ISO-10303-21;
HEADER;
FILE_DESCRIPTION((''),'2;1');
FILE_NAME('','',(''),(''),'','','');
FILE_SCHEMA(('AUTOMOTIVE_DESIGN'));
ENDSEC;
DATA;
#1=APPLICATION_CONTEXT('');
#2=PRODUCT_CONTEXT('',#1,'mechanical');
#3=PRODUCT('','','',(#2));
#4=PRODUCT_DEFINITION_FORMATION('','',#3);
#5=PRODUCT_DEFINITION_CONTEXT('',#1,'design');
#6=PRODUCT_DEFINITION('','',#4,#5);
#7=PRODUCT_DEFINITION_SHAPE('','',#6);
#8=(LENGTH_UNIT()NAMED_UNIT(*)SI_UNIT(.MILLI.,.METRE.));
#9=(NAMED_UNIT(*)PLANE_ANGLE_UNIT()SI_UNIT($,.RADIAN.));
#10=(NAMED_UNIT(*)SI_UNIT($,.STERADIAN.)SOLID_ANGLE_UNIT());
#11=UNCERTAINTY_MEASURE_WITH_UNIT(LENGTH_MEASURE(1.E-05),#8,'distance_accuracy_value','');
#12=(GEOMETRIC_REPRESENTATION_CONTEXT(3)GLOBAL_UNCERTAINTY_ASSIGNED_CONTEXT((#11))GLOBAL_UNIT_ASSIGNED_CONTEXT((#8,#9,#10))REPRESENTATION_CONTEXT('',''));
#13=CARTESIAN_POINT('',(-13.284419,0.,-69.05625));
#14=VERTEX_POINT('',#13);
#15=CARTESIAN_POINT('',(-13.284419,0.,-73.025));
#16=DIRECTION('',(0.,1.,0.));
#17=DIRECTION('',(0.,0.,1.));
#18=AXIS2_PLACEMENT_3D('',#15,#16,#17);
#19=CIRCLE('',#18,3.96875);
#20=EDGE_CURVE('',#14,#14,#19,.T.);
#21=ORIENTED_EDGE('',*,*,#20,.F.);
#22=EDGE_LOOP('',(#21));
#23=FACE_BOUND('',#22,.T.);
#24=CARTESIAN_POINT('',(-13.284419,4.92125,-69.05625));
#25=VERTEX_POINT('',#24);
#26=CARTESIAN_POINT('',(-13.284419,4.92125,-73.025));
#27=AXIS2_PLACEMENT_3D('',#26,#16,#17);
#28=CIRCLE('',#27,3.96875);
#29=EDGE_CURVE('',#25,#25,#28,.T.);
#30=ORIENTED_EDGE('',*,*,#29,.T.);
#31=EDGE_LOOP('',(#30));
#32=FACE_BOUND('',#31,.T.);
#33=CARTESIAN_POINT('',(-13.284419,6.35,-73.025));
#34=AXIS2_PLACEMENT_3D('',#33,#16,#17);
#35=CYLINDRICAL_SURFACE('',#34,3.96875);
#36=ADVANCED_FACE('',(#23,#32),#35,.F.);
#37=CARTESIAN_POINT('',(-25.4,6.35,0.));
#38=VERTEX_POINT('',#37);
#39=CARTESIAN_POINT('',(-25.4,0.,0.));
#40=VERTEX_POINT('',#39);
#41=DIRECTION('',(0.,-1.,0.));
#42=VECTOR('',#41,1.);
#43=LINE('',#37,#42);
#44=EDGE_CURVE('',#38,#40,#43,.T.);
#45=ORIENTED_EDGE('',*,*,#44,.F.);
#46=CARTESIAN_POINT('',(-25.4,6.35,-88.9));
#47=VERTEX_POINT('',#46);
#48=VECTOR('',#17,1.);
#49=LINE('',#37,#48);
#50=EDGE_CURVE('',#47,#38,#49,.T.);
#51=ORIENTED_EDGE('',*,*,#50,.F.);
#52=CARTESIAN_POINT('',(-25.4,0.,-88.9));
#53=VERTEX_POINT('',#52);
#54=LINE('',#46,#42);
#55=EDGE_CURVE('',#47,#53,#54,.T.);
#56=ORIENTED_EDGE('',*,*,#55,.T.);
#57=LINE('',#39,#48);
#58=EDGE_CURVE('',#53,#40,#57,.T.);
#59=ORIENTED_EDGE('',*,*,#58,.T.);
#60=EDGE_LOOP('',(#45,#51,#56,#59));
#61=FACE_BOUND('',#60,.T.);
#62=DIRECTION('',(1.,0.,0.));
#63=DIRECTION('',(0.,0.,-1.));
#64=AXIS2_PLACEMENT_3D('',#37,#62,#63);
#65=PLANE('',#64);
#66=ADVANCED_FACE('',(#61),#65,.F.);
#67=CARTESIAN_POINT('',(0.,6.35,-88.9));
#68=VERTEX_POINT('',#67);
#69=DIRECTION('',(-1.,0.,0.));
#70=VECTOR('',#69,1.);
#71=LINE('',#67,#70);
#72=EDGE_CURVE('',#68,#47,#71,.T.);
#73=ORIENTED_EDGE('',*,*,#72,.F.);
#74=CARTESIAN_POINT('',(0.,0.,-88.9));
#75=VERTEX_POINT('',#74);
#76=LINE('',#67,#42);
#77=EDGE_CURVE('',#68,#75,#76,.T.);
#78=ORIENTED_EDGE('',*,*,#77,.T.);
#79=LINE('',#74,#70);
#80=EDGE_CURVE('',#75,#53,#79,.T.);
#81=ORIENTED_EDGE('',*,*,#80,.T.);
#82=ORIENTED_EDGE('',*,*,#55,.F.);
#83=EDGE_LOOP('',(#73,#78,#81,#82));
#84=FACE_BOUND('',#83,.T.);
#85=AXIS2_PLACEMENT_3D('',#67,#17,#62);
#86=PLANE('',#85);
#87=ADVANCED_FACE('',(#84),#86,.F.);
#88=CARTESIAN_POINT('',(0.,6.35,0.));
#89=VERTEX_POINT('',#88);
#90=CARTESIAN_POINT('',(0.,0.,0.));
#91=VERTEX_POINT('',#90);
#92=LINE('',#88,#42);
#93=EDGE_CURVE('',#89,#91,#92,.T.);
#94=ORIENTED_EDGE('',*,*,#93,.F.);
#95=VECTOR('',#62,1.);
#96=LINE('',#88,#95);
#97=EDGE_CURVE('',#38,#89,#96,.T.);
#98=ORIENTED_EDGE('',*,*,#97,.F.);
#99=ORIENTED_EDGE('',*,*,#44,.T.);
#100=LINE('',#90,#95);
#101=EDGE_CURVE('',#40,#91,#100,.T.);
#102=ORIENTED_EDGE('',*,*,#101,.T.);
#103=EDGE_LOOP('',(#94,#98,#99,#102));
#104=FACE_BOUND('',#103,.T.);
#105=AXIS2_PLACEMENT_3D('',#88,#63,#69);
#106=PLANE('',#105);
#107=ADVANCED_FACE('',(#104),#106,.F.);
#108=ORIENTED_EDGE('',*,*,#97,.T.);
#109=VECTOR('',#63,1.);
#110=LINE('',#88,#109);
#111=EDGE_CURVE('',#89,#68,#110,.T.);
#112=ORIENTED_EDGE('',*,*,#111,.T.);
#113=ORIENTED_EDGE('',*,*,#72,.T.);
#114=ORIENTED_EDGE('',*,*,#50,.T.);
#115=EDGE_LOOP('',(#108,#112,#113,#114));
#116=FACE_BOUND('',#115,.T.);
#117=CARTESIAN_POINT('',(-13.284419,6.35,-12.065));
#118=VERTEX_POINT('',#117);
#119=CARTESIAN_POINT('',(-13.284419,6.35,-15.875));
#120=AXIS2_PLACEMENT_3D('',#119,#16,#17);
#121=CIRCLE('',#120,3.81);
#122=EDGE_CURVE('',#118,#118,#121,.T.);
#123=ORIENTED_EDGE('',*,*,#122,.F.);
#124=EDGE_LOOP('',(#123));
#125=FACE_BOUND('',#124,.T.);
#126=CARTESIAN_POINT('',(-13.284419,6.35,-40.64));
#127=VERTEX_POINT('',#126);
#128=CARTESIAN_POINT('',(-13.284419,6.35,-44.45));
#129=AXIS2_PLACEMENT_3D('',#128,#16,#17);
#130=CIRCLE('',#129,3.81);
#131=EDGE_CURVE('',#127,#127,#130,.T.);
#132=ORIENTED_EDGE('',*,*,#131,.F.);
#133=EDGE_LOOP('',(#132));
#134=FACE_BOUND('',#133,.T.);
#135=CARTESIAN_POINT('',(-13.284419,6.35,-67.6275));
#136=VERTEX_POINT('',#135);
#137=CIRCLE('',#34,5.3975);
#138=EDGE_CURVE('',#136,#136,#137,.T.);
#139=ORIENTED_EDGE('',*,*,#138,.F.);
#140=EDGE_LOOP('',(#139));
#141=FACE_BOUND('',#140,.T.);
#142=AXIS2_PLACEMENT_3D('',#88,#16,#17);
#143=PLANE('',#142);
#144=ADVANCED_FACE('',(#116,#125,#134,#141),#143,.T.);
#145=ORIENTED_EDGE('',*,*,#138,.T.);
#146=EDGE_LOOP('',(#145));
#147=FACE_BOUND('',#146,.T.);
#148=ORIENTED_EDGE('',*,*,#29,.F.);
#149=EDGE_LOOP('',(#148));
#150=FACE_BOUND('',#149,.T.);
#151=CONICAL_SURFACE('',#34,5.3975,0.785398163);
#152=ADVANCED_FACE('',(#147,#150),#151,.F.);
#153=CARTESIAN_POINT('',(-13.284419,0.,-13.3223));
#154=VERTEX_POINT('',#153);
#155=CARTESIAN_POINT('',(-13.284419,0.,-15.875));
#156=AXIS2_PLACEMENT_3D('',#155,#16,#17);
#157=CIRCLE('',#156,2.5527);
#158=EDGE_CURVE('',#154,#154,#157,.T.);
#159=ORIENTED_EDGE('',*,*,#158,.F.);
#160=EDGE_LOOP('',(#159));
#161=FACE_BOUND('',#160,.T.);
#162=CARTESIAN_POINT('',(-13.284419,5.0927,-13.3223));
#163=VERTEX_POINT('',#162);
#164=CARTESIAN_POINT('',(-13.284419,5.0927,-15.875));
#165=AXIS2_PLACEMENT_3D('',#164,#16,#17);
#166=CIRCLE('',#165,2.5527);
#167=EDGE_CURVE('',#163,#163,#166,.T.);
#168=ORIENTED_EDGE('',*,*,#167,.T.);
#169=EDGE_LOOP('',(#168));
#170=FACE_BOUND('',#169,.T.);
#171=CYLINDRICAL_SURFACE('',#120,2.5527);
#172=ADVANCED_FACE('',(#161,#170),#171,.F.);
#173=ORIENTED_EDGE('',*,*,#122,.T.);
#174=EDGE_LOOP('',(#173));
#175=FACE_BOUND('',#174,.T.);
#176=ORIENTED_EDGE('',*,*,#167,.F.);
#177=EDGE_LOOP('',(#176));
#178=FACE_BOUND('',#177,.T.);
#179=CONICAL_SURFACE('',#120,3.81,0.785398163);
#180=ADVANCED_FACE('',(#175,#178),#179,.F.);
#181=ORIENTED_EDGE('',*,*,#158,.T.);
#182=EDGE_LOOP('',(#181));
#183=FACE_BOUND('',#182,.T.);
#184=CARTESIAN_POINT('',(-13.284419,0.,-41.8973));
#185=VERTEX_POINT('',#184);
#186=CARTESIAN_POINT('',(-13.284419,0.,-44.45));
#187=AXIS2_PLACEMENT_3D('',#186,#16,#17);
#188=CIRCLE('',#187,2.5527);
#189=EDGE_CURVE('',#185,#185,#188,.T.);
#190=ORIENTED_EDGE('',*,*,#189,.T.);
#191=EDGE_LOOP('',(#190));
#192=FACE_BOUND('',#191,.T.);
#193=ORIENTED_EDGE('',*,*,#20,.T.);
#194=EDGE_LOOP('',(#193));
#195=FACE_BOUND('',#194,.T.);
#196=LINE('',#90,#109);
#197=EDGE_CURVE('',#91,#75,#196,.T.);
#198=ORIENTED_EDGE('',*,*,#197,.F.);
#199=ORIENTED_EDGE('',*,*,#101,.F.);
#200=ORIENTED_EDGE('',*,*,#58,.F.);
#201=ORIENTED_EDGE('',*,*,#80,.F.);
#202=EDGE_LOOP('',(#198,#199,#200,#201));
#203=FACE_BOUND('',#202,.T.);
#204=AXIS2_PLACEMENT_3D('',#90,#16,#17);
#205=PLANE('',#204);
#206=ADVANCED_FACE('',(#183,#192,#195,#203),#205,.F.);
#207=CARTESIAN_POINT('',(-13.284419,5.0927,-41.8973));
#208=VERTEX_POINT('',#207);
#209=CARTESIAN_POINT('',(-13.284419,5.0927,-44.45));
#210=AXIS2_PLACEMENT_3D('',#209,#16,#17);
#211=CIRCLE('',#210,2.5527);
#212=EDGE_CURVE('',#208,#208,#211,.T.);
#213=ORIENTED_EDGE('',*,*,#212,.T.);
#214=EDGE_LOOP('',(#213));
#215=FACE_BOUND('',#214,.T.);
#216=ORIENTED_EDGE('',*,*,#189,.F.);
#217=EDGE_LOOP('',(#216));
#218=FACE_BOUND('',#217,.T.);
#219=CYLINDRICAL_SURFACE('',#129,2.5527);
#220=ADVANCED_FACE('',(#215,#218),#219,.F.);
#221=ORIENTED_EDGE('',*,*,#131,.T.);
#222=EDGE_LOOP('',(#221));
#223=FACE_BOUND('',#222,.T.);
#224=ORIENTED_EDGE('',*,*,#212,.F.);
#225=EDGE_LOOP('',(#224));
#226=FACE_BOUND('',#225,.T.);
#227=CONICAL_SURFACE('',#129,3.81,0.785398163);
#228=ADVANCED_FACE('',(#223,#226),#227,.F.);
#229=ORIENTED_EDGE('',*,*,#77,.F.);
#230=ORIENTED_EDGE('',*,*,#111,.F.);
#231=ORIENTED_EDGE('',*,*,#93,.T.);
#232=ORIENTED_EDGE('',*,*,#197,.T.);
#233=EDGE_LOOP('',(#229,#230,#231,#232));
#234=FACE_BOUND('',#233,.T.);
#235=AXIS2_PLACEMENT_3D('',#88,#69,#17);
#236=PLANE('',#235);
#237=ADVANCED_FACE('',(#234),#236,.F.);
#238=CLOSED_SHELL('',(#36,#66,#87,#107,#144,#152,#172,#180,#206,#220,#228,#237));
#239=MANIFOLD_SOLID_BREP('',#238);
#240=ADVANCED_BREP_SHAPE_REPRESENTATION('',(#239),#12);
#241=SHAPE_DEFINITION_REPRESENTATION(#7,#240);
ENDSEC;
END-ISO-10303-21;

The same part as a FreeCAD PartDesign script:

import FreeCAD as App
import Part
import Sketcher

V = App.Vector
Q = App.Units.Quantity


def add_polygon(sketch, points):
    """Adds a closed chain of lines whose ends are joined by coincident constraints."""
    first, n = sketch.GeometryCount, len(points)
    for a, b in zip(points, points[1:] + points[:1]):
        sketch.addGeometry(Part.LineSegment(App.Vector(*a, 0), App.Vector(*b, 0)), False)
    for i in range(n):
        sketch.addConstraint(Sketcher.Constraint("Coincident", first + i, 2, first + (i + 1) % n, 1))

doc = App.newDocument("Part")
params = doc.addObject("Spreadsheet::Sheet", "Params")
for row, (alias, value) in enumerate([
    ("sketch1_width", "1 in"),
    ("sketch1_height", "3.5 in"),
    ("pad1_length", "0.25 in"),
    ("sketch2_diameter", "0.201 in"),
    ("hole_diameter", "0.201 in"),
    ("hole_csink_diameter", "0.3 in"),
    ("sketch3_diameter", "0.3125 in"),
    ("hole2_diameter", "0.3125 in"),
    ("hole2_csink_diameter", "0.425 in"),
], start=1):
    params.set(f"A{row}", alias)
    params.set(f"B{row}", "=" + value)
    params.setAlias(f"B{row}", alias)

body = doc.addObject("PartDesign::Body", "Body")

sketch1 = body.newObject("Sketcher::SketchObject", "Sketch")
sketch1.AttachmentSupport = (doc.getObject("XZ_Plane"), [""])
sketch1.MapMode = "FlatFace"
add_polygon(sketch1, [(-25.4, -88.9), (-25.4, 0), (0, 0), (0, -88.9)])
sketch1.addConstraint(Sketcher.Constraint("Vertical", 0))
sketch1.addConstraint(Sketcher.Constraint("Horizontal", 1))
sketch1.addConstraint(Sketcher.Constraint("Vertical", 2))
sketch1.addConstraint(Sketcher.Constraint("Horizontal", 3))
sketch1.addConstraint(Sketcher.Constraint("Coincident", 1, 2, -1, 1))
sketch1.addConstraint(Sketcher.Constraint("DistanceX", 1, 1, 1, 2, Q("1 in")))
sketch1.addConstraint(Sketcher.Constraint("DistanceY", 0, 1, 0, 2, Q("3.5 in")))
sketch1.setExpression("Constraints[9]", "Params.sketch1_width")
sketch1.setExpression("Constraints[10]", "Params.sketch1_height")
pad1 = body.newObject("PartDesign::Pad", "Pad")
pad1.Profile = sketch1
pad1.setExpression("Length", "Params.pad1_length")
pad1.Reversed = True

sketch2 = body.newObject("Sketcher::SketchObject", "Sketch001")
sketch2.AttachmentSupport = (doc.getObject("XZ_Plane"), [""])
sketch2.MapMode = "FlatFace"
sketch2.AttachmentOffset = App.Placement(V(0, 0, -0.25 * 25.4), App.Rotation())
sketch2.addGeometry(Part.Circle(V(-13.284419, -15.875, 0), V(0, 0, 1), 2.5527), False)
sketch2.addGeometry(Part.Circle(V(-13.284419, -44.45, 0), V(0, 0, 1), 2.5527), False)
sketch2.addConstraint(Sketcher.Constraint("Equal", 0, 1))
sketch2.addConstraint(Sketcher.Constraint("Vertical", 0, 3, 1, 3))
sketch2.addConstraint(Sketcher.Constraint("Diameter", 0, Q("0.201 in")))
sketch2.addConstraint(Sketcher.Constraint("DistanceY", 1, 3, -1, 1, Q("1.75 in")))
sketch2.addConstraint(Sketcher.Constraint("DistanceY", 0, 3, -1, 1, Q("0.625 in")))
sketch2.addConstraint(Sketcher.Constraint("DistanceX", 0, 3, -1, 1, 13.284419))
sketch2.setExpression("Constraints[2]", "Params.sketch2_diameter")
doc.recompute()
hole = body.newObject("PartDesign::Hole", "Hole")
hole.Profile = sketch2
hole.ThreadType = "None"
hole.setExpression("Diameter", "Params.hole_diameter")
hole.DepthType = "ThroughAll"
hole.HoleCutType = "Countersink"
hole.setExpression("HoleCutDiameter", "Params.hole_csink_diameter")
hole.HoleCutCountersinkAngle = 90
hole.Reversed = True

sketch3 = body.newObject("Sketcher::SketchObject", "Sketch002")
sketch3.AttachmentSupport = (doc.getObject("XZ_Plane"), [""])
sketch3.MapMode = "FlatFace"
sketch3.AttachmentOffset = App.Placement(V(0, 0, -0.25 * 25.4), App.Rotation())
sketch3.addGeometry(Part.Circle(V(-13.284419, -73.025, 0), V(0, 0, 1), 3.96875), False)
sketch3.addConstraint(Sketcher.Constraint("Diameter", 0, Q("0.3125 in")))
sketch3.addConstraint(Sketcher.Constraint("DistanceY", 0, 3, -1, 1, Q("2.875 in")))
sketch3.addConstraint(Sketcher.Constraint("DistanceX", 0, 3, -1, 1, 13.284419))
sketch3.setExpression("Constraints[0]", "Params.sketch3_diameter")
doc.recompute()
hole2 = body.newObject("PartDesign::Hole", "Hole001")
hole2.Profile = sketch3
hole2.ThreadType = "None"
hole2.setExpression("Diameter", "Params.hole2_diameter")
hole2.DepthType = "ThroughAll"
hole2.HoleCutType = "Countersink"
hole2.setExpression("HoleCutDiameter", "Params.hole2_csink_diameter")
hole2.HoleCutCountersinkAngle = 90
hole2.Reversed = True

doc.recompute()
